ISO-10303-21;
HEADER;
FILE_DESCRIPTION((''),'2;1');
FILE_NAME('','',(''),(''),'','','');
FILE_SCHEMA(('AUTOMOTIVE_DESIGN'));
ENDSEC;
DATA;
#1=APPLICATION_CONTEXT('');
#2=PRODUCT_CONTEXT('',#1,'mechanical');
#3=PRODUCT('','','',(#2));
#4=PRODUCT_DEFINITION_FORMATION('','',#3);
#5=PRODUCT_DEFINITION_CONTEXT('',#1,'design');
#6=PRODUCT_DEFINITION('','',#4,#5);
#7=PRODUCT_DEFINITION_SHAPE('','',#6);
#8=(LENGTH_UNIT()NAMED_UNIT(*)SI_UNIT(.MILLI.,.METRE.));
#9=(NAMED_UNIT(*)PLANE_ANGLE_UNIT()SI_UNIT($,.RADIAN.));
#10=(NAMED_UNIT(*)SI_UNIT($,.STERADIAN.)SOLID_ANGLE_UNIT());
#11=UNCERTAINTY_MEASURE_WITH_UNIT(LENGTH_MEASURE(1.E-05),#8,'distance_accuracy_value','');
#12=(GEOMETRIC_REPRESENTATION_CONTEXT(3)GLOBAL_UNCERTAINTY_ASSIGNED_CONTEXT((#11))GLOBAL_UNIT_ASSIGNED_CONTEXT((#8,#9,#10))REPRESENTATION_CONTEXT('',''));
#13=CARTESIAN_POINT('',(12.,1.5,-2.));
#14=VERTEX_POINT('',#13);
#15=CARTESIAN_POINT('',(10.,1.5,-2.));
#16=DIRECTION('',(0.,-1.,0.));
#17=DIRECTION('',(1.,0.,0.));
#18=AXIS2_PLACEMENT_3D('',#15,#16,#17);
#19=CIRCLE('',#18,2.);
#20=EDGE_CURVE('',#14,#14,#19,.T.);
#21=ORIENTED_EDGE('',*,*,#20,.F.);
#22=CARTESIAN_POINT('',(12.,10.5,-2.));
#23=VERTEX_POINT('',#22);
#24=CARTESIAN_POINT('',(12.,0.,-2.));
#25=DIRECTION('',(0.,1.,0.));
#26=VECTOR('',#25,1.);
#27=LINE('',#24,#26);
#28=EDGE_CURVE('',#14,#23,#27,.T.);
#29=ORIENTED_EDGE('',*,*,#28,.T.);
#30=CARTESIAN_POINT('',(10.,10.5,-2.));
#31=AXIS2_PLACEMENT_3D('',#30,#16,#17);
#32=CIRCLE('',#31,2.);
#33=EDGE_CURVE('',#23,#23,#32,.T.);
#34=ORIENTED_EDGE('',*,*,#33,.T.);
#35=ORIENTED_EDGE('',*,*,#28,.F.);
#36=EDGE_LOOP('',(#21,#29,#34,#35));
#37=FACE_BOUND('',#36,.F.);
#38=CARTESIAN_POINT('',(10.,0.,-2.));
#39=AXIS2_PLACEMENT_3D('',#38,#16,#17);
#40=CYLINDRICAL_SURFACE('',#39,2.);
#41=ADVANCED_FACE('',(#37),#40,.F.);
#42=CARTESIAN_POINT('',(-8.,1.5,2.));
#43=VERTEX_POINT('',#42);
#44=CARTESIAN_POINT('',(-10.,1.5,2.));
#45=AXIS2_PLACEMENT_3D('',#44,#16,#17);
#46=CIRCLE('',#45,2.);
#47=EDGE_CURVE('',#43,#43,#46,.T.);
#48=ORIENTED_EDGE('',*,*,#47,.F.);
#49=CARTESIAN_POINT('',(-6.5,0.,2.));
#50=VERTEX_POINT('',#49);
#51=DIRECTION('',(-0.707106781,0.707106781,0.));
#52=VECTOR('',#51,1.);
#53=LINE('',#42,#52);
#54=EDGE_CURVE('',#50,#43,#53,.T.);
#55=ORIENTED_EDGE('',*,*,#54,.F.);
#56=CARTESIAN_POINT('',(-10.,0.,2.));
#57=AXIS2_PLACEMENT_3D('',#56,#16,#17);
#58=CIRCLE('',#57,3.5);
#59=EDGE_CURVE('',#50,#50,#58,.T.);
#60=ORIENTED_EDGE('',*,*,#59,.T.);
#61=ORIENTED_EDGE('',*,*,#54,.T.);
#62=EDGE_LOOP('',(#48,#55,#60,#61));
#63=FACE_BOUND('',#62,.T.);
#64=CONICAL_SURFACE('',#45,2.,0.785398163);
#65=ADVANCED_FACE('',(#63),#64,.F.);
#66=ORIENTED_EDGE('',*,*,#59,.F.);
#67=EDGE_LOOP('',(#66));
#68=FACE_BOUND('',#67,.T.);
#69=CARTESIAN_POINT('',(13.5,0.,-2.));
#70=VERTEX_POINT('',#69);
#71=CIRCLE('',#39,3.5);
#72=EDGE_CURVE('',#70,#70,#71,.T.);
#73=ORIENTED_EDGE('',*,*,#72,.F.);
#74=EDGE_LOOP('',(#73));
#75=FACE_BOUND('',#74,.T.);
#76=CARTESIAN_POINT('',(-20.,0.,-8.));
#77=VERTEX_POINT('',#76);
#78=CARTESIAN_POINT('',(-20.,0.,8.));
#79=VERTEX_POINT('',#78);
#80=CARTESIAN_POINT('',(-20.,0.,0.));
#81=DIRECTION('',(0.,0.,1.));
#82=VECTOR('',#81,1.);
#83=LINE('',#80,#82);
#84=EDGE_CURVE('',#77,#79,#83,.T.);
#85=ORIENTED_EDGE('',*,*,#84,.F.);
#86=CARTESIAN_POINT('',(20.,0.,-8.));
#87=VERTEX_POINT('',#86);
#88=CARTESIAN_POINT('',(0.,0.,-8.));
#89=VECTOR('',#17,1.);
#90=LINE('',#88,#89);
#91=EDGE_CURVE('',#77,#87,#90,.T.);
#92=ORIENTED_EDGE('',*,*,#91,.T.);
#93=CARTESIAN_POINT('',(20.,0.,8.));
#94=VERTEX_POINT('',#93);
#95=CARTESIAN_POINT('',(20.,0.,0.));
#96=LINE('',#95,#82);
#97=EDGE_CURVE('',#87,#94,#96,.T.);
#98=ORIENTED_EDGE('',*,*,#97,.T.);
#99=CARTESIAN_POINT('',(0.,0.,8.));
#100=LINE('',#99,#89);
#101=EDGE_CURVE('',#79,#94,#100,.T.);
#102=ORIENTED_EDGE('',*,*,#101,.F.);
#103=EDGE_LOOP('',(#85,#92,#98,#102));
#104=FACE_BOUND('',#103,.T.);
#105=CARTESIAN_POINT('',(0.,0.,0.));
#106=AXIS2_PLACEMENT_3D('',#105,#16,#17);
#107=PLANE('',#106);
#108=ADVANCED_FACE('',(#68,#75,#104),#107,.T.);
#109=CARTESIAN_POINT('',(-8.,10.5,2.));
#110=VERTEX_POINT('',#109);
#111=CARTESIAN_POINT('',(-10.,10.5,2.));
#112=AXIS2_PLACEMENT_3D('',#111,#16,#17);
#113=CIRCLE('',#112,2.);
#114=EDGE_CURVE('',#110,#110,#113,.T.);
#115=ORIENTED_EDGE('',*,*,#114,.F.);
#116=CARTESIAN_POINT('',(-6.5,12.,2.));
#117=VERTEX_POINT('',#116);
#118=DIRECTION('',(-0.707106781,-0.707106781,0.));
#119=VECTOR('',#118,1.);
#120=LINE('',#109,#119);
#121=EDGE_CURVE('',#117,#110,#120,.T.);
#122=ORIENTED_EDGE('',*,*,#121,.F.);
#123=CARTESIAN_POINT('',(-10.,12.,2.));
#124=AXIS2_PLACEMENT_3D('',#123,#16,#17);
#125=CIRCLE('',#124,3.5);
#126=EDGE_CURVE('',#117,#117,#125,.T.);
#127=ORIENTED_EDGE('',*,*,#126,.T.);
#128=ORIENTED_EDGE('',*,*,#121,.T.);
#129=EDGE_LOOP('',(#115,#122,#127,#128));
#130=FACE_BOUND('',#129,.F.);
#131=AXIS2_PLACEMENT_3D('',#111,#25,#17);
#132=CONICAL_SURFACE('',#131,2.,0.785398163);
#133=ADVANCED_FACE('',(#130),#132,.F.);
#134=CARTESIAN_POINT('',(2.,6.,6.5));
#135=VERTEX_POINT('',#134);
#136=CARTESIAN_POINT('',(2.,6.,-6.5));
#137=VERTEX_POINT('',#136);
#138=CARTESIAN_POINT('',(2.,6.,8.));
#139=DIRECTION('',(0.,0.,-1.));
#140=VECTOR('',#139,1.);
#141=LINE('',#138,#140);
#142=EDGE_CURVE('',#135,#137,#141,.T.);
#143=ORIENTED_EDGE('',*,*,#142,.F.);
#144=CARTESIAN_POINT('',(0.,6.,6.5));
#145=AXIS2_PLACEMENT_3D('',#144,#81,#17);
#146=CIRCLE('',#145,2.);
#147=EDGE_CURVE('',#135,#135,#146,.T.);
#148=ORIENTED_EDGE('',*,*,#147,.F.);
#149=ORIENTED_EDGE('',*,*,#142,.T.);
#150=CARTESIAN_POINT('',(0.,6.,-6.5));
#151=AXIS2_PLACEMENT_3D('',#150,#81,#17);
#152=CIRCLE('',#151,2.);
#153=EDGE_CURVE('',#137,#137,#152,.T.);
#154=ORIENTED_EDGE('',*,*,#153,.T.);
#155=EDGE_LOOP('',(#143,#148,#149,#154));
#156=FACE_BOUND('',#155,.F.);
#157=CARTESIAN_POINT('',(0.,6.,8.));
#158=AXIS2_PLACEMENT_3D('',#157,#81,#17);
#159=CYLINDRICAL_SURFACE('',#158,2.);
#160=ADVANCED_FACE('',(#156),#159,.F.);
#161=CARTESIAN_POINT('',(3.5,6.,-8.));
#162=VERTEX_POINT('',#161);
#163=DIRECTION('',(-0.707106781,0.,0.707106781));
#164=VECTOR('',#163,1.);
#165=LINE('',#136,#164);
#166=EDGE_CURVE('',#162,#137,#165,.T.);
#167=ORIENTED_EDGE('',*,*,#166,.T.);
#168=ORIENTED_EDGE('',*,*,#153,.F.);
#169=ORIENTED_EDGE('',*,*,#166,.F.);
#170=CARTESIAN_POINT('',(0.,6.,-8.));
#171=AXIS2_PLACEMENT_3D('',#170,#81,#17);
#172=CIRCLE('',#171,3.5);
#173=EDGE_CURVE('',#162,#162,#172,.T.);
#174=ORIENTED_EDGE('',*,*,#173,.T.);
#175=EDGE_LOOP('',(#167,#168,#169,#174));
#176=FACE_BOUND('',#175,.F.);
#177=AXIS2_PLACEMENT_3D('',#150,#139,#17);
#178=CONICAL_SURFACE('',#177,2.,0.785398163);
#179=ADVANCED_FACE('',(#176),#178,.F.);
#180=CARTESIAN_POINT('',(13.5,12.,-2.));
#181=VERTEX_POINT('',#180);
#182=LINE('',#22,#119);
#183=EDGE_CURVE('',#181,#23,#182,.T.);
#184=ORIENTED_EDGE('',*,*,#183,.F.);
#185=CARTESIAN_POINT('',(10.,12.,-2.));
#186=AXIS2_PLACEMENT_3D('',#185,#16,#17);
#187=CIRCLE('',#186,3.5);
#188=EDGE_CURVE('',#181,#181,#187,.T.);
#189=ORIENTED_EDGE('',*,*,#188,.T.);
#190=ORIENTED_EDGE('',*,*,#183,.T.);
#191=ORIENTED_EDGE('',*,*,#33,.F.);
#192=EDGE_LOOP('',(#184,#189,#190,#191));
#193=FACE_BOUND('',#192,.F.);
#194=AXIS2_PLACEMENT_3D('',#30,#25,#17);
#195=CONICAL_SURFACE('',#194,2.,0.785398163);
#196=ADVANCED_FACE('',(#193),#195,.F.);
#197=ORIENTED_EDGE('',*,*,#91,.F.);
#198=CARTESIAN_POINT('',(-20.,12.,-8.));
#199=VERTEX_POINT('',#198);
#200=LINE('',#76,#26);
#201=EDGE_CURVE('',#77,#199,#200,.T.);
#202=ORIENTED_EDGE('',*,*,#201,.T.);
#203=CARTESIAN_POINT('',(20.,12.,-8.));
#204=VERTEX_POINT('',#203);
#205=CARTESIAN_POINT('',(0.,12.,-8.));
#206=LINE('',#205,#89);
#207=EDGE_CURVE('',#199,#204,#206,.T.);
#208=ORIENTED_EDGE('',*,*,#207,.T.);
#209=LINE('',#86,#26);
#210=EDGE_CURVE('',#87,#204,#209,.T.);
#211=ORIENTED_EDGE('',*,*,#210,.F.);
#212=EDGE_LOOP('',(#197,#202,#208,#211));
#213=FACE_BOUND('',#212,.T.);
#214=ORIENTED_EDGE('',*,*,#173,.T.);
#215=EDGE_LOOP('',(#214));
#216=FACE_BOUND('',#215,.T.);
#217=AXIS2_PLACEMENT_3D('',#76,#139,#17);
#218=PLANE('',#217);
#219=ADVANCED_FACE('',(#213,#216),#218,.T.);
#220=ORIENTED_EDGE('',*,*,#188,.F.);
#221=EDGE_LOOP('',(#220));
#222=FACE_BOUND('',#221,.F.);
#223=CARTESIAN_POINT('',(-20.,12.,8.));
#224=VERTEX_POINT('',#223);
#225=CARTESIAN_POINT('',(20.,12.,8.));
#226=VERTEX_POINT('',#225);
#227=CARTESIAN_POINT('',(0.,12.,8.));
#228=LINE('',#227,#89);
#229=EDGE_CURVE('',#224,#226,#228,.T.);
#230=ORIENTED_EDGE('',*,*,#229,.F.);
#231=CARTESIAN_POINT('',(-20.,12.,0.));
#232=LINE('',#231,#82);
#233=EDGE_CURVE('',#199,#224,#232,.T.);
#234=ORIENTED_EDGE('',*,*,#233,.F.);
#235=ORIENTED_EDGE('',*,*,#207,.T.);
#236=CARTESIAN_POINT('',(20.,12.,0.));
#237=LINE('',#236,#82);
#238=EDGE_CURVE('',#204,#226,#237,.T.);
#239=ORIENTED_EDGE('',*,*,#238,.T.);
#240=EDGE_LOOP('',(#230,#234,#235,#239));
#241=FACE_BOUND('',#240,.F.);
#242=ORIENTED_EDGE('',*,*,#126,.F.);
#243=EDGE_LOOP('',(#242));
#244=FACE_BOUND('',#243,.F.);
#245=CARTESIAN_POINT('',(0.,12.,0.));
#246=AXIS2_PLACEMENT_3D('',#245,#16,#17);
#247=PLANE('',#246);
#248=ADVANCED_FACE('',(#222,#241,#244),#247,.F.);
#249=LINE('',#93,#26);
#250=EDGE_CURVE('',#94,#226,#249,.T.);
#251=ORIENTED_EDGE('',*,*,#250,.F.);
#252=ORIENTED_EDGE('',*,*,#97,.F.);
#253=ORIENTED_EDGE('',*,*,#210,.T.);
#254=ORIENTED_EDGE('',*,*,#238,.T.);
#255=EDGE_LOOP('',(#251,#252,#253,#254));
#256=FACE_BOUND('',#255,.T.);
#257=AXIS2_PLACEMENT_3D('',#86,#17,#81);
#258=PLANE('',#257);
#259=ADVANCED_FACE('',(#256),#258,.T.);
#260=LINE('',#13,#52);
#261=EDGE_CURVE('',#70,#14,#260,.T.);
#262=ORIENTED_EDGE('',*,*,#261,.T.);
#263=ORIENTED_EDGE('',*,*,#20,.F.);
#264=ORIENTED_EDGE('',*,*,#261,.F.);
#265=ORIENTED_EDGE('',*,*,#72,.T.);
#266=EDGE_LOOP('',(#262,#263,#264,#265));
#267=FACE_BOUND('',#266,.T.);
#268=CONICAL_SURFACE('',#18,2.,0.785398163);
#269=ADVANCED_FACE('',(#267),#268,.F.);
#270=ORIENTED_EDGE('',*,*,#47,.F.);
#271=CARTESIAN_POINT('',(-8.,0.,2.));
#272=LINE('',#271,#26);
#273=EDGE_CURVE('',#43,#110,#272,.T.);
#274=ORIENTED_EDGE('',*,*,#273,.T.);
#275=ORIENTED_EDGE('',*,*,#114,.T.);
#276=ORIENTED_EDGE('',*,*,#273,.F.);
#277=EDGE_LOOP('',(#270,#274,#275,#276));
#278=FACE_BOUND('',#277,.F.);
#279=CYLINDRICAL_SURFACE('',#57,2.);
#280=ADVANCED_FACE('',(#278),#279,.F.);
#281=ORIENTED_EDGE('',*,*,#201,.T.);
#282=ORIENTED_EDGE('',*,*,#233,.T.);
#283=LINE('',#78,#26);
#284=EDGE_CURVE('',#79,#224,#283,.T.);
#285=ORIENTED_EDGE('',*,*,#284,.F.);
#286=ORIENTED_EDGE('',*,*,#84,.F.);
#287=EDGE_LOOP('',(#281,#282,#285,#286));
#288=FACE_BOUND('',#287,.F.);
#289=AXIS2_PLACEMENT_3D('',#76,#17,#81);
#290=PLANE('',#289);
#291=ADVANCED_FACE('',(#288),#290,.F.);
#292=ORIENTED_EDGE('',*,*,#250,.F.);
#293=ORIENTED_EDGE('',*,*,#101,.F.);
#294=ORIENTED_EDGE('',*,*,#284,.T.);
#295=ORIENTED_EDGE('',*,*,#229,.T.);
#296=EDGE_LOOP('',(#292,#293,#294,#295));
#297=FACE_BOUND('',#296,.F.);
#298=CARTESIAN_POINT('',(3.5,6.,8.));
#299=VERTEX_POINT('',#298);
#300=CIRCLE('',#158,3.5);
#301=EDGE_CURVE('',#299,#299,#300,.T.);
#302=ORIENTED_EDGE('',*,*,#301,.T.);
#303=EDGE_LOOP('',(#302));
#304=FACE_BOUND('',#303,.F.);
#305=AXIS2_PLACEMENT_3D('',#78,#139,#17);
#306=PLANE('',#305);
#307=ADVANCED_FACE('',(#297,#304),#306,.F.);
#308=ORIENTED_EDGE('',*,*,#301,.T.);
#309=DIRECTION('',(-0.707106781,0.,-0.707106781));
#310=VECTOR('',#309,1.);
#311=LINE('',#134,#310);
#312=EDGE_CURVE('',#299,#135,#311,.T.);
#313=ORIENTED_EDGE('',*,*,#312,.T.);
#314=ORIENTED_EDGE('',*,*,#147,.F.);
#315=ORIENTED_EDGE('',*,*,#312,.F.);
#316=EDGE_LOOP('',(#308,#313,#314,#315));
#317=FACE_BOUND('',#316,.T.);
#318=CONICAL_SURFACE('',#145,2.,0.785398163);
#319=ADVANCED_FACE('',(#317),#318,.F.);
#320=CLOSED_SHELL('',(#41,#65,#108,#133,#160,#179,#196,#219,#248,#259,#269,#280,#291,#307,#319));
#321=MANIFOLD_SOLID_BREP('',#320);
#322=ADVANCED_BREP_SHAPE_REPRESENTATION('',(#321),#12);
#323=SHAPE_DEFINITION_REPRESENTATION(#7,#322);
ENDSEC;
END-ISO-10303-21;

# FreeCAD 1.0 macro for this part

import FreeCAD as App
import Part
import Sketcher
from FreeCAD import Vector


def edges_at(feature, points):
    """Names of the edges that pass closest to the given points."""
    edges = feature.Shape.Edges
    near = lambda p: min(range(len(edges)), key=lambda i: edges[i].distToShape(Part.Vertex(*p))[0])
    return sorted({f"Edge{near(p) + 1}" for p in points})


def add_polygon(sketch, points):
    """Adds a closed chain of lines whose ends are joined by coincident constraints."""
    first, n = sketch.GeometryCount, len(points)
    for a, b in zip(points, points[1:] + points[:1]):
        sketch.addGeometry(Part.LineSegment(App.Vector(*a, 0), App.Vector(*b, 0)), False)
    for i in range(n):
        sketch.addConstraint(Sketcher.Constraint("Coincident", first + i, 2, first + (i + 1) % n, 1))

doc = App.newDocument("Part")
body = doc.addObject("PartDesign::Body", "Body")

# Sketch on XZ plane
sketch1 = body.newObject("Sketcher::SketchObject", "Sketch")
sketch1.AttachmentSupport = (doc.getObject("XZ_Plane"), [""])
sketch1.MapMode = "FlatFace"
add_polygon(sketch1, [(-20, 8), (-20, -8), (20, -8), (20, 8)])  # lines 0-3
sketch1.addGeometry(Part.Circle(Vector(10, -2, 0), Vector(0, 0, 1), 2), False)  # 4
sketch1.addGeometry(Part.Circle(Vector(-10, 2, 0), Vector(0, 0, 1), 2), False)  # 5
sketch1.addConstraint([
    Sketcher.Constraint("Vertical", 0),
    Sketcher.Constraint("Horizontal", 1),
    Sketcher.Constraint("Vertical", 2),
    Sketcher.Constraint("Horizontal", 3),
    Sketcher.Constraint("Equal", 4, 5),
    Sketcher.Constraint("Symmetric", 4, 3, 5, 3, -1, 1),
    Sketcher.Constraint("Symmetric", 0, 2, 2, 2, -1, 1),
    Sketcher.Constraint("Diameter", 4, 4.0),
    Sketcher.Constraint("DistanceX", 1, 1, 1, 2, 40.0),
    Sketcher.Constraint("DistanceY", 0, 2, 0, 1, 16.0),
    Sketcher.Constraint("DistanceX", -1, 1, 4, 3, 10.0),
    Sketcher.Constraint("DistanceY", 4, 3, -1, 1, 2.0),
])
pad1 = body.newObject("PartDesign::Pad", "Pad")
pad1.Profile = sketch1
pad1.Length = 12
pad1.Reversed = True

# Sketch on XY plane
sketch2 = body.newObject("Sketcher::SketchObject", "Sketch001")
sketch2.AttachmentSupport = (doc.getObject("XY_Plane"), [""])
sketch2.MapMode = "FlatFace"
sketch2.AttachmentOffset = App.Placement(Vector(0, 0, 8), App.Rotation())
sketch2.addGeometry(Part.Circle(Vector(0, 6, 0), Vector(0, 0, 1), 2), False)
sketch2.addConstraint([
    Sketcher.Constraint("PointOnObject", 0, 3, -2),
    Sketcher.Constraint("Diameter", 0, 4.0),
    Sketcher.Constraint("DistanceY", -1, 1, 0, 3, 6.0),
])
pocket1 = body.newObject("PartDesign::Pocket", "Pocket")
pocket1.Profile = sketch2
pocket1.Type = "ThroughAll"
doc.recompute()

chamfer = body.newObject("PartDesign::Chamfer", "Chamfer")
chamfer.Base = (pocket1, edges_at(pocket1, [
    (-12, 12, 2),
    (8, 12, -2),
    (-12, 0, 2),
    (8, 0, -2),
    (-2, 6, 8),
    (-2, 6, -8),
]))
chamfer.Size = 1.5

doc.recompute()
